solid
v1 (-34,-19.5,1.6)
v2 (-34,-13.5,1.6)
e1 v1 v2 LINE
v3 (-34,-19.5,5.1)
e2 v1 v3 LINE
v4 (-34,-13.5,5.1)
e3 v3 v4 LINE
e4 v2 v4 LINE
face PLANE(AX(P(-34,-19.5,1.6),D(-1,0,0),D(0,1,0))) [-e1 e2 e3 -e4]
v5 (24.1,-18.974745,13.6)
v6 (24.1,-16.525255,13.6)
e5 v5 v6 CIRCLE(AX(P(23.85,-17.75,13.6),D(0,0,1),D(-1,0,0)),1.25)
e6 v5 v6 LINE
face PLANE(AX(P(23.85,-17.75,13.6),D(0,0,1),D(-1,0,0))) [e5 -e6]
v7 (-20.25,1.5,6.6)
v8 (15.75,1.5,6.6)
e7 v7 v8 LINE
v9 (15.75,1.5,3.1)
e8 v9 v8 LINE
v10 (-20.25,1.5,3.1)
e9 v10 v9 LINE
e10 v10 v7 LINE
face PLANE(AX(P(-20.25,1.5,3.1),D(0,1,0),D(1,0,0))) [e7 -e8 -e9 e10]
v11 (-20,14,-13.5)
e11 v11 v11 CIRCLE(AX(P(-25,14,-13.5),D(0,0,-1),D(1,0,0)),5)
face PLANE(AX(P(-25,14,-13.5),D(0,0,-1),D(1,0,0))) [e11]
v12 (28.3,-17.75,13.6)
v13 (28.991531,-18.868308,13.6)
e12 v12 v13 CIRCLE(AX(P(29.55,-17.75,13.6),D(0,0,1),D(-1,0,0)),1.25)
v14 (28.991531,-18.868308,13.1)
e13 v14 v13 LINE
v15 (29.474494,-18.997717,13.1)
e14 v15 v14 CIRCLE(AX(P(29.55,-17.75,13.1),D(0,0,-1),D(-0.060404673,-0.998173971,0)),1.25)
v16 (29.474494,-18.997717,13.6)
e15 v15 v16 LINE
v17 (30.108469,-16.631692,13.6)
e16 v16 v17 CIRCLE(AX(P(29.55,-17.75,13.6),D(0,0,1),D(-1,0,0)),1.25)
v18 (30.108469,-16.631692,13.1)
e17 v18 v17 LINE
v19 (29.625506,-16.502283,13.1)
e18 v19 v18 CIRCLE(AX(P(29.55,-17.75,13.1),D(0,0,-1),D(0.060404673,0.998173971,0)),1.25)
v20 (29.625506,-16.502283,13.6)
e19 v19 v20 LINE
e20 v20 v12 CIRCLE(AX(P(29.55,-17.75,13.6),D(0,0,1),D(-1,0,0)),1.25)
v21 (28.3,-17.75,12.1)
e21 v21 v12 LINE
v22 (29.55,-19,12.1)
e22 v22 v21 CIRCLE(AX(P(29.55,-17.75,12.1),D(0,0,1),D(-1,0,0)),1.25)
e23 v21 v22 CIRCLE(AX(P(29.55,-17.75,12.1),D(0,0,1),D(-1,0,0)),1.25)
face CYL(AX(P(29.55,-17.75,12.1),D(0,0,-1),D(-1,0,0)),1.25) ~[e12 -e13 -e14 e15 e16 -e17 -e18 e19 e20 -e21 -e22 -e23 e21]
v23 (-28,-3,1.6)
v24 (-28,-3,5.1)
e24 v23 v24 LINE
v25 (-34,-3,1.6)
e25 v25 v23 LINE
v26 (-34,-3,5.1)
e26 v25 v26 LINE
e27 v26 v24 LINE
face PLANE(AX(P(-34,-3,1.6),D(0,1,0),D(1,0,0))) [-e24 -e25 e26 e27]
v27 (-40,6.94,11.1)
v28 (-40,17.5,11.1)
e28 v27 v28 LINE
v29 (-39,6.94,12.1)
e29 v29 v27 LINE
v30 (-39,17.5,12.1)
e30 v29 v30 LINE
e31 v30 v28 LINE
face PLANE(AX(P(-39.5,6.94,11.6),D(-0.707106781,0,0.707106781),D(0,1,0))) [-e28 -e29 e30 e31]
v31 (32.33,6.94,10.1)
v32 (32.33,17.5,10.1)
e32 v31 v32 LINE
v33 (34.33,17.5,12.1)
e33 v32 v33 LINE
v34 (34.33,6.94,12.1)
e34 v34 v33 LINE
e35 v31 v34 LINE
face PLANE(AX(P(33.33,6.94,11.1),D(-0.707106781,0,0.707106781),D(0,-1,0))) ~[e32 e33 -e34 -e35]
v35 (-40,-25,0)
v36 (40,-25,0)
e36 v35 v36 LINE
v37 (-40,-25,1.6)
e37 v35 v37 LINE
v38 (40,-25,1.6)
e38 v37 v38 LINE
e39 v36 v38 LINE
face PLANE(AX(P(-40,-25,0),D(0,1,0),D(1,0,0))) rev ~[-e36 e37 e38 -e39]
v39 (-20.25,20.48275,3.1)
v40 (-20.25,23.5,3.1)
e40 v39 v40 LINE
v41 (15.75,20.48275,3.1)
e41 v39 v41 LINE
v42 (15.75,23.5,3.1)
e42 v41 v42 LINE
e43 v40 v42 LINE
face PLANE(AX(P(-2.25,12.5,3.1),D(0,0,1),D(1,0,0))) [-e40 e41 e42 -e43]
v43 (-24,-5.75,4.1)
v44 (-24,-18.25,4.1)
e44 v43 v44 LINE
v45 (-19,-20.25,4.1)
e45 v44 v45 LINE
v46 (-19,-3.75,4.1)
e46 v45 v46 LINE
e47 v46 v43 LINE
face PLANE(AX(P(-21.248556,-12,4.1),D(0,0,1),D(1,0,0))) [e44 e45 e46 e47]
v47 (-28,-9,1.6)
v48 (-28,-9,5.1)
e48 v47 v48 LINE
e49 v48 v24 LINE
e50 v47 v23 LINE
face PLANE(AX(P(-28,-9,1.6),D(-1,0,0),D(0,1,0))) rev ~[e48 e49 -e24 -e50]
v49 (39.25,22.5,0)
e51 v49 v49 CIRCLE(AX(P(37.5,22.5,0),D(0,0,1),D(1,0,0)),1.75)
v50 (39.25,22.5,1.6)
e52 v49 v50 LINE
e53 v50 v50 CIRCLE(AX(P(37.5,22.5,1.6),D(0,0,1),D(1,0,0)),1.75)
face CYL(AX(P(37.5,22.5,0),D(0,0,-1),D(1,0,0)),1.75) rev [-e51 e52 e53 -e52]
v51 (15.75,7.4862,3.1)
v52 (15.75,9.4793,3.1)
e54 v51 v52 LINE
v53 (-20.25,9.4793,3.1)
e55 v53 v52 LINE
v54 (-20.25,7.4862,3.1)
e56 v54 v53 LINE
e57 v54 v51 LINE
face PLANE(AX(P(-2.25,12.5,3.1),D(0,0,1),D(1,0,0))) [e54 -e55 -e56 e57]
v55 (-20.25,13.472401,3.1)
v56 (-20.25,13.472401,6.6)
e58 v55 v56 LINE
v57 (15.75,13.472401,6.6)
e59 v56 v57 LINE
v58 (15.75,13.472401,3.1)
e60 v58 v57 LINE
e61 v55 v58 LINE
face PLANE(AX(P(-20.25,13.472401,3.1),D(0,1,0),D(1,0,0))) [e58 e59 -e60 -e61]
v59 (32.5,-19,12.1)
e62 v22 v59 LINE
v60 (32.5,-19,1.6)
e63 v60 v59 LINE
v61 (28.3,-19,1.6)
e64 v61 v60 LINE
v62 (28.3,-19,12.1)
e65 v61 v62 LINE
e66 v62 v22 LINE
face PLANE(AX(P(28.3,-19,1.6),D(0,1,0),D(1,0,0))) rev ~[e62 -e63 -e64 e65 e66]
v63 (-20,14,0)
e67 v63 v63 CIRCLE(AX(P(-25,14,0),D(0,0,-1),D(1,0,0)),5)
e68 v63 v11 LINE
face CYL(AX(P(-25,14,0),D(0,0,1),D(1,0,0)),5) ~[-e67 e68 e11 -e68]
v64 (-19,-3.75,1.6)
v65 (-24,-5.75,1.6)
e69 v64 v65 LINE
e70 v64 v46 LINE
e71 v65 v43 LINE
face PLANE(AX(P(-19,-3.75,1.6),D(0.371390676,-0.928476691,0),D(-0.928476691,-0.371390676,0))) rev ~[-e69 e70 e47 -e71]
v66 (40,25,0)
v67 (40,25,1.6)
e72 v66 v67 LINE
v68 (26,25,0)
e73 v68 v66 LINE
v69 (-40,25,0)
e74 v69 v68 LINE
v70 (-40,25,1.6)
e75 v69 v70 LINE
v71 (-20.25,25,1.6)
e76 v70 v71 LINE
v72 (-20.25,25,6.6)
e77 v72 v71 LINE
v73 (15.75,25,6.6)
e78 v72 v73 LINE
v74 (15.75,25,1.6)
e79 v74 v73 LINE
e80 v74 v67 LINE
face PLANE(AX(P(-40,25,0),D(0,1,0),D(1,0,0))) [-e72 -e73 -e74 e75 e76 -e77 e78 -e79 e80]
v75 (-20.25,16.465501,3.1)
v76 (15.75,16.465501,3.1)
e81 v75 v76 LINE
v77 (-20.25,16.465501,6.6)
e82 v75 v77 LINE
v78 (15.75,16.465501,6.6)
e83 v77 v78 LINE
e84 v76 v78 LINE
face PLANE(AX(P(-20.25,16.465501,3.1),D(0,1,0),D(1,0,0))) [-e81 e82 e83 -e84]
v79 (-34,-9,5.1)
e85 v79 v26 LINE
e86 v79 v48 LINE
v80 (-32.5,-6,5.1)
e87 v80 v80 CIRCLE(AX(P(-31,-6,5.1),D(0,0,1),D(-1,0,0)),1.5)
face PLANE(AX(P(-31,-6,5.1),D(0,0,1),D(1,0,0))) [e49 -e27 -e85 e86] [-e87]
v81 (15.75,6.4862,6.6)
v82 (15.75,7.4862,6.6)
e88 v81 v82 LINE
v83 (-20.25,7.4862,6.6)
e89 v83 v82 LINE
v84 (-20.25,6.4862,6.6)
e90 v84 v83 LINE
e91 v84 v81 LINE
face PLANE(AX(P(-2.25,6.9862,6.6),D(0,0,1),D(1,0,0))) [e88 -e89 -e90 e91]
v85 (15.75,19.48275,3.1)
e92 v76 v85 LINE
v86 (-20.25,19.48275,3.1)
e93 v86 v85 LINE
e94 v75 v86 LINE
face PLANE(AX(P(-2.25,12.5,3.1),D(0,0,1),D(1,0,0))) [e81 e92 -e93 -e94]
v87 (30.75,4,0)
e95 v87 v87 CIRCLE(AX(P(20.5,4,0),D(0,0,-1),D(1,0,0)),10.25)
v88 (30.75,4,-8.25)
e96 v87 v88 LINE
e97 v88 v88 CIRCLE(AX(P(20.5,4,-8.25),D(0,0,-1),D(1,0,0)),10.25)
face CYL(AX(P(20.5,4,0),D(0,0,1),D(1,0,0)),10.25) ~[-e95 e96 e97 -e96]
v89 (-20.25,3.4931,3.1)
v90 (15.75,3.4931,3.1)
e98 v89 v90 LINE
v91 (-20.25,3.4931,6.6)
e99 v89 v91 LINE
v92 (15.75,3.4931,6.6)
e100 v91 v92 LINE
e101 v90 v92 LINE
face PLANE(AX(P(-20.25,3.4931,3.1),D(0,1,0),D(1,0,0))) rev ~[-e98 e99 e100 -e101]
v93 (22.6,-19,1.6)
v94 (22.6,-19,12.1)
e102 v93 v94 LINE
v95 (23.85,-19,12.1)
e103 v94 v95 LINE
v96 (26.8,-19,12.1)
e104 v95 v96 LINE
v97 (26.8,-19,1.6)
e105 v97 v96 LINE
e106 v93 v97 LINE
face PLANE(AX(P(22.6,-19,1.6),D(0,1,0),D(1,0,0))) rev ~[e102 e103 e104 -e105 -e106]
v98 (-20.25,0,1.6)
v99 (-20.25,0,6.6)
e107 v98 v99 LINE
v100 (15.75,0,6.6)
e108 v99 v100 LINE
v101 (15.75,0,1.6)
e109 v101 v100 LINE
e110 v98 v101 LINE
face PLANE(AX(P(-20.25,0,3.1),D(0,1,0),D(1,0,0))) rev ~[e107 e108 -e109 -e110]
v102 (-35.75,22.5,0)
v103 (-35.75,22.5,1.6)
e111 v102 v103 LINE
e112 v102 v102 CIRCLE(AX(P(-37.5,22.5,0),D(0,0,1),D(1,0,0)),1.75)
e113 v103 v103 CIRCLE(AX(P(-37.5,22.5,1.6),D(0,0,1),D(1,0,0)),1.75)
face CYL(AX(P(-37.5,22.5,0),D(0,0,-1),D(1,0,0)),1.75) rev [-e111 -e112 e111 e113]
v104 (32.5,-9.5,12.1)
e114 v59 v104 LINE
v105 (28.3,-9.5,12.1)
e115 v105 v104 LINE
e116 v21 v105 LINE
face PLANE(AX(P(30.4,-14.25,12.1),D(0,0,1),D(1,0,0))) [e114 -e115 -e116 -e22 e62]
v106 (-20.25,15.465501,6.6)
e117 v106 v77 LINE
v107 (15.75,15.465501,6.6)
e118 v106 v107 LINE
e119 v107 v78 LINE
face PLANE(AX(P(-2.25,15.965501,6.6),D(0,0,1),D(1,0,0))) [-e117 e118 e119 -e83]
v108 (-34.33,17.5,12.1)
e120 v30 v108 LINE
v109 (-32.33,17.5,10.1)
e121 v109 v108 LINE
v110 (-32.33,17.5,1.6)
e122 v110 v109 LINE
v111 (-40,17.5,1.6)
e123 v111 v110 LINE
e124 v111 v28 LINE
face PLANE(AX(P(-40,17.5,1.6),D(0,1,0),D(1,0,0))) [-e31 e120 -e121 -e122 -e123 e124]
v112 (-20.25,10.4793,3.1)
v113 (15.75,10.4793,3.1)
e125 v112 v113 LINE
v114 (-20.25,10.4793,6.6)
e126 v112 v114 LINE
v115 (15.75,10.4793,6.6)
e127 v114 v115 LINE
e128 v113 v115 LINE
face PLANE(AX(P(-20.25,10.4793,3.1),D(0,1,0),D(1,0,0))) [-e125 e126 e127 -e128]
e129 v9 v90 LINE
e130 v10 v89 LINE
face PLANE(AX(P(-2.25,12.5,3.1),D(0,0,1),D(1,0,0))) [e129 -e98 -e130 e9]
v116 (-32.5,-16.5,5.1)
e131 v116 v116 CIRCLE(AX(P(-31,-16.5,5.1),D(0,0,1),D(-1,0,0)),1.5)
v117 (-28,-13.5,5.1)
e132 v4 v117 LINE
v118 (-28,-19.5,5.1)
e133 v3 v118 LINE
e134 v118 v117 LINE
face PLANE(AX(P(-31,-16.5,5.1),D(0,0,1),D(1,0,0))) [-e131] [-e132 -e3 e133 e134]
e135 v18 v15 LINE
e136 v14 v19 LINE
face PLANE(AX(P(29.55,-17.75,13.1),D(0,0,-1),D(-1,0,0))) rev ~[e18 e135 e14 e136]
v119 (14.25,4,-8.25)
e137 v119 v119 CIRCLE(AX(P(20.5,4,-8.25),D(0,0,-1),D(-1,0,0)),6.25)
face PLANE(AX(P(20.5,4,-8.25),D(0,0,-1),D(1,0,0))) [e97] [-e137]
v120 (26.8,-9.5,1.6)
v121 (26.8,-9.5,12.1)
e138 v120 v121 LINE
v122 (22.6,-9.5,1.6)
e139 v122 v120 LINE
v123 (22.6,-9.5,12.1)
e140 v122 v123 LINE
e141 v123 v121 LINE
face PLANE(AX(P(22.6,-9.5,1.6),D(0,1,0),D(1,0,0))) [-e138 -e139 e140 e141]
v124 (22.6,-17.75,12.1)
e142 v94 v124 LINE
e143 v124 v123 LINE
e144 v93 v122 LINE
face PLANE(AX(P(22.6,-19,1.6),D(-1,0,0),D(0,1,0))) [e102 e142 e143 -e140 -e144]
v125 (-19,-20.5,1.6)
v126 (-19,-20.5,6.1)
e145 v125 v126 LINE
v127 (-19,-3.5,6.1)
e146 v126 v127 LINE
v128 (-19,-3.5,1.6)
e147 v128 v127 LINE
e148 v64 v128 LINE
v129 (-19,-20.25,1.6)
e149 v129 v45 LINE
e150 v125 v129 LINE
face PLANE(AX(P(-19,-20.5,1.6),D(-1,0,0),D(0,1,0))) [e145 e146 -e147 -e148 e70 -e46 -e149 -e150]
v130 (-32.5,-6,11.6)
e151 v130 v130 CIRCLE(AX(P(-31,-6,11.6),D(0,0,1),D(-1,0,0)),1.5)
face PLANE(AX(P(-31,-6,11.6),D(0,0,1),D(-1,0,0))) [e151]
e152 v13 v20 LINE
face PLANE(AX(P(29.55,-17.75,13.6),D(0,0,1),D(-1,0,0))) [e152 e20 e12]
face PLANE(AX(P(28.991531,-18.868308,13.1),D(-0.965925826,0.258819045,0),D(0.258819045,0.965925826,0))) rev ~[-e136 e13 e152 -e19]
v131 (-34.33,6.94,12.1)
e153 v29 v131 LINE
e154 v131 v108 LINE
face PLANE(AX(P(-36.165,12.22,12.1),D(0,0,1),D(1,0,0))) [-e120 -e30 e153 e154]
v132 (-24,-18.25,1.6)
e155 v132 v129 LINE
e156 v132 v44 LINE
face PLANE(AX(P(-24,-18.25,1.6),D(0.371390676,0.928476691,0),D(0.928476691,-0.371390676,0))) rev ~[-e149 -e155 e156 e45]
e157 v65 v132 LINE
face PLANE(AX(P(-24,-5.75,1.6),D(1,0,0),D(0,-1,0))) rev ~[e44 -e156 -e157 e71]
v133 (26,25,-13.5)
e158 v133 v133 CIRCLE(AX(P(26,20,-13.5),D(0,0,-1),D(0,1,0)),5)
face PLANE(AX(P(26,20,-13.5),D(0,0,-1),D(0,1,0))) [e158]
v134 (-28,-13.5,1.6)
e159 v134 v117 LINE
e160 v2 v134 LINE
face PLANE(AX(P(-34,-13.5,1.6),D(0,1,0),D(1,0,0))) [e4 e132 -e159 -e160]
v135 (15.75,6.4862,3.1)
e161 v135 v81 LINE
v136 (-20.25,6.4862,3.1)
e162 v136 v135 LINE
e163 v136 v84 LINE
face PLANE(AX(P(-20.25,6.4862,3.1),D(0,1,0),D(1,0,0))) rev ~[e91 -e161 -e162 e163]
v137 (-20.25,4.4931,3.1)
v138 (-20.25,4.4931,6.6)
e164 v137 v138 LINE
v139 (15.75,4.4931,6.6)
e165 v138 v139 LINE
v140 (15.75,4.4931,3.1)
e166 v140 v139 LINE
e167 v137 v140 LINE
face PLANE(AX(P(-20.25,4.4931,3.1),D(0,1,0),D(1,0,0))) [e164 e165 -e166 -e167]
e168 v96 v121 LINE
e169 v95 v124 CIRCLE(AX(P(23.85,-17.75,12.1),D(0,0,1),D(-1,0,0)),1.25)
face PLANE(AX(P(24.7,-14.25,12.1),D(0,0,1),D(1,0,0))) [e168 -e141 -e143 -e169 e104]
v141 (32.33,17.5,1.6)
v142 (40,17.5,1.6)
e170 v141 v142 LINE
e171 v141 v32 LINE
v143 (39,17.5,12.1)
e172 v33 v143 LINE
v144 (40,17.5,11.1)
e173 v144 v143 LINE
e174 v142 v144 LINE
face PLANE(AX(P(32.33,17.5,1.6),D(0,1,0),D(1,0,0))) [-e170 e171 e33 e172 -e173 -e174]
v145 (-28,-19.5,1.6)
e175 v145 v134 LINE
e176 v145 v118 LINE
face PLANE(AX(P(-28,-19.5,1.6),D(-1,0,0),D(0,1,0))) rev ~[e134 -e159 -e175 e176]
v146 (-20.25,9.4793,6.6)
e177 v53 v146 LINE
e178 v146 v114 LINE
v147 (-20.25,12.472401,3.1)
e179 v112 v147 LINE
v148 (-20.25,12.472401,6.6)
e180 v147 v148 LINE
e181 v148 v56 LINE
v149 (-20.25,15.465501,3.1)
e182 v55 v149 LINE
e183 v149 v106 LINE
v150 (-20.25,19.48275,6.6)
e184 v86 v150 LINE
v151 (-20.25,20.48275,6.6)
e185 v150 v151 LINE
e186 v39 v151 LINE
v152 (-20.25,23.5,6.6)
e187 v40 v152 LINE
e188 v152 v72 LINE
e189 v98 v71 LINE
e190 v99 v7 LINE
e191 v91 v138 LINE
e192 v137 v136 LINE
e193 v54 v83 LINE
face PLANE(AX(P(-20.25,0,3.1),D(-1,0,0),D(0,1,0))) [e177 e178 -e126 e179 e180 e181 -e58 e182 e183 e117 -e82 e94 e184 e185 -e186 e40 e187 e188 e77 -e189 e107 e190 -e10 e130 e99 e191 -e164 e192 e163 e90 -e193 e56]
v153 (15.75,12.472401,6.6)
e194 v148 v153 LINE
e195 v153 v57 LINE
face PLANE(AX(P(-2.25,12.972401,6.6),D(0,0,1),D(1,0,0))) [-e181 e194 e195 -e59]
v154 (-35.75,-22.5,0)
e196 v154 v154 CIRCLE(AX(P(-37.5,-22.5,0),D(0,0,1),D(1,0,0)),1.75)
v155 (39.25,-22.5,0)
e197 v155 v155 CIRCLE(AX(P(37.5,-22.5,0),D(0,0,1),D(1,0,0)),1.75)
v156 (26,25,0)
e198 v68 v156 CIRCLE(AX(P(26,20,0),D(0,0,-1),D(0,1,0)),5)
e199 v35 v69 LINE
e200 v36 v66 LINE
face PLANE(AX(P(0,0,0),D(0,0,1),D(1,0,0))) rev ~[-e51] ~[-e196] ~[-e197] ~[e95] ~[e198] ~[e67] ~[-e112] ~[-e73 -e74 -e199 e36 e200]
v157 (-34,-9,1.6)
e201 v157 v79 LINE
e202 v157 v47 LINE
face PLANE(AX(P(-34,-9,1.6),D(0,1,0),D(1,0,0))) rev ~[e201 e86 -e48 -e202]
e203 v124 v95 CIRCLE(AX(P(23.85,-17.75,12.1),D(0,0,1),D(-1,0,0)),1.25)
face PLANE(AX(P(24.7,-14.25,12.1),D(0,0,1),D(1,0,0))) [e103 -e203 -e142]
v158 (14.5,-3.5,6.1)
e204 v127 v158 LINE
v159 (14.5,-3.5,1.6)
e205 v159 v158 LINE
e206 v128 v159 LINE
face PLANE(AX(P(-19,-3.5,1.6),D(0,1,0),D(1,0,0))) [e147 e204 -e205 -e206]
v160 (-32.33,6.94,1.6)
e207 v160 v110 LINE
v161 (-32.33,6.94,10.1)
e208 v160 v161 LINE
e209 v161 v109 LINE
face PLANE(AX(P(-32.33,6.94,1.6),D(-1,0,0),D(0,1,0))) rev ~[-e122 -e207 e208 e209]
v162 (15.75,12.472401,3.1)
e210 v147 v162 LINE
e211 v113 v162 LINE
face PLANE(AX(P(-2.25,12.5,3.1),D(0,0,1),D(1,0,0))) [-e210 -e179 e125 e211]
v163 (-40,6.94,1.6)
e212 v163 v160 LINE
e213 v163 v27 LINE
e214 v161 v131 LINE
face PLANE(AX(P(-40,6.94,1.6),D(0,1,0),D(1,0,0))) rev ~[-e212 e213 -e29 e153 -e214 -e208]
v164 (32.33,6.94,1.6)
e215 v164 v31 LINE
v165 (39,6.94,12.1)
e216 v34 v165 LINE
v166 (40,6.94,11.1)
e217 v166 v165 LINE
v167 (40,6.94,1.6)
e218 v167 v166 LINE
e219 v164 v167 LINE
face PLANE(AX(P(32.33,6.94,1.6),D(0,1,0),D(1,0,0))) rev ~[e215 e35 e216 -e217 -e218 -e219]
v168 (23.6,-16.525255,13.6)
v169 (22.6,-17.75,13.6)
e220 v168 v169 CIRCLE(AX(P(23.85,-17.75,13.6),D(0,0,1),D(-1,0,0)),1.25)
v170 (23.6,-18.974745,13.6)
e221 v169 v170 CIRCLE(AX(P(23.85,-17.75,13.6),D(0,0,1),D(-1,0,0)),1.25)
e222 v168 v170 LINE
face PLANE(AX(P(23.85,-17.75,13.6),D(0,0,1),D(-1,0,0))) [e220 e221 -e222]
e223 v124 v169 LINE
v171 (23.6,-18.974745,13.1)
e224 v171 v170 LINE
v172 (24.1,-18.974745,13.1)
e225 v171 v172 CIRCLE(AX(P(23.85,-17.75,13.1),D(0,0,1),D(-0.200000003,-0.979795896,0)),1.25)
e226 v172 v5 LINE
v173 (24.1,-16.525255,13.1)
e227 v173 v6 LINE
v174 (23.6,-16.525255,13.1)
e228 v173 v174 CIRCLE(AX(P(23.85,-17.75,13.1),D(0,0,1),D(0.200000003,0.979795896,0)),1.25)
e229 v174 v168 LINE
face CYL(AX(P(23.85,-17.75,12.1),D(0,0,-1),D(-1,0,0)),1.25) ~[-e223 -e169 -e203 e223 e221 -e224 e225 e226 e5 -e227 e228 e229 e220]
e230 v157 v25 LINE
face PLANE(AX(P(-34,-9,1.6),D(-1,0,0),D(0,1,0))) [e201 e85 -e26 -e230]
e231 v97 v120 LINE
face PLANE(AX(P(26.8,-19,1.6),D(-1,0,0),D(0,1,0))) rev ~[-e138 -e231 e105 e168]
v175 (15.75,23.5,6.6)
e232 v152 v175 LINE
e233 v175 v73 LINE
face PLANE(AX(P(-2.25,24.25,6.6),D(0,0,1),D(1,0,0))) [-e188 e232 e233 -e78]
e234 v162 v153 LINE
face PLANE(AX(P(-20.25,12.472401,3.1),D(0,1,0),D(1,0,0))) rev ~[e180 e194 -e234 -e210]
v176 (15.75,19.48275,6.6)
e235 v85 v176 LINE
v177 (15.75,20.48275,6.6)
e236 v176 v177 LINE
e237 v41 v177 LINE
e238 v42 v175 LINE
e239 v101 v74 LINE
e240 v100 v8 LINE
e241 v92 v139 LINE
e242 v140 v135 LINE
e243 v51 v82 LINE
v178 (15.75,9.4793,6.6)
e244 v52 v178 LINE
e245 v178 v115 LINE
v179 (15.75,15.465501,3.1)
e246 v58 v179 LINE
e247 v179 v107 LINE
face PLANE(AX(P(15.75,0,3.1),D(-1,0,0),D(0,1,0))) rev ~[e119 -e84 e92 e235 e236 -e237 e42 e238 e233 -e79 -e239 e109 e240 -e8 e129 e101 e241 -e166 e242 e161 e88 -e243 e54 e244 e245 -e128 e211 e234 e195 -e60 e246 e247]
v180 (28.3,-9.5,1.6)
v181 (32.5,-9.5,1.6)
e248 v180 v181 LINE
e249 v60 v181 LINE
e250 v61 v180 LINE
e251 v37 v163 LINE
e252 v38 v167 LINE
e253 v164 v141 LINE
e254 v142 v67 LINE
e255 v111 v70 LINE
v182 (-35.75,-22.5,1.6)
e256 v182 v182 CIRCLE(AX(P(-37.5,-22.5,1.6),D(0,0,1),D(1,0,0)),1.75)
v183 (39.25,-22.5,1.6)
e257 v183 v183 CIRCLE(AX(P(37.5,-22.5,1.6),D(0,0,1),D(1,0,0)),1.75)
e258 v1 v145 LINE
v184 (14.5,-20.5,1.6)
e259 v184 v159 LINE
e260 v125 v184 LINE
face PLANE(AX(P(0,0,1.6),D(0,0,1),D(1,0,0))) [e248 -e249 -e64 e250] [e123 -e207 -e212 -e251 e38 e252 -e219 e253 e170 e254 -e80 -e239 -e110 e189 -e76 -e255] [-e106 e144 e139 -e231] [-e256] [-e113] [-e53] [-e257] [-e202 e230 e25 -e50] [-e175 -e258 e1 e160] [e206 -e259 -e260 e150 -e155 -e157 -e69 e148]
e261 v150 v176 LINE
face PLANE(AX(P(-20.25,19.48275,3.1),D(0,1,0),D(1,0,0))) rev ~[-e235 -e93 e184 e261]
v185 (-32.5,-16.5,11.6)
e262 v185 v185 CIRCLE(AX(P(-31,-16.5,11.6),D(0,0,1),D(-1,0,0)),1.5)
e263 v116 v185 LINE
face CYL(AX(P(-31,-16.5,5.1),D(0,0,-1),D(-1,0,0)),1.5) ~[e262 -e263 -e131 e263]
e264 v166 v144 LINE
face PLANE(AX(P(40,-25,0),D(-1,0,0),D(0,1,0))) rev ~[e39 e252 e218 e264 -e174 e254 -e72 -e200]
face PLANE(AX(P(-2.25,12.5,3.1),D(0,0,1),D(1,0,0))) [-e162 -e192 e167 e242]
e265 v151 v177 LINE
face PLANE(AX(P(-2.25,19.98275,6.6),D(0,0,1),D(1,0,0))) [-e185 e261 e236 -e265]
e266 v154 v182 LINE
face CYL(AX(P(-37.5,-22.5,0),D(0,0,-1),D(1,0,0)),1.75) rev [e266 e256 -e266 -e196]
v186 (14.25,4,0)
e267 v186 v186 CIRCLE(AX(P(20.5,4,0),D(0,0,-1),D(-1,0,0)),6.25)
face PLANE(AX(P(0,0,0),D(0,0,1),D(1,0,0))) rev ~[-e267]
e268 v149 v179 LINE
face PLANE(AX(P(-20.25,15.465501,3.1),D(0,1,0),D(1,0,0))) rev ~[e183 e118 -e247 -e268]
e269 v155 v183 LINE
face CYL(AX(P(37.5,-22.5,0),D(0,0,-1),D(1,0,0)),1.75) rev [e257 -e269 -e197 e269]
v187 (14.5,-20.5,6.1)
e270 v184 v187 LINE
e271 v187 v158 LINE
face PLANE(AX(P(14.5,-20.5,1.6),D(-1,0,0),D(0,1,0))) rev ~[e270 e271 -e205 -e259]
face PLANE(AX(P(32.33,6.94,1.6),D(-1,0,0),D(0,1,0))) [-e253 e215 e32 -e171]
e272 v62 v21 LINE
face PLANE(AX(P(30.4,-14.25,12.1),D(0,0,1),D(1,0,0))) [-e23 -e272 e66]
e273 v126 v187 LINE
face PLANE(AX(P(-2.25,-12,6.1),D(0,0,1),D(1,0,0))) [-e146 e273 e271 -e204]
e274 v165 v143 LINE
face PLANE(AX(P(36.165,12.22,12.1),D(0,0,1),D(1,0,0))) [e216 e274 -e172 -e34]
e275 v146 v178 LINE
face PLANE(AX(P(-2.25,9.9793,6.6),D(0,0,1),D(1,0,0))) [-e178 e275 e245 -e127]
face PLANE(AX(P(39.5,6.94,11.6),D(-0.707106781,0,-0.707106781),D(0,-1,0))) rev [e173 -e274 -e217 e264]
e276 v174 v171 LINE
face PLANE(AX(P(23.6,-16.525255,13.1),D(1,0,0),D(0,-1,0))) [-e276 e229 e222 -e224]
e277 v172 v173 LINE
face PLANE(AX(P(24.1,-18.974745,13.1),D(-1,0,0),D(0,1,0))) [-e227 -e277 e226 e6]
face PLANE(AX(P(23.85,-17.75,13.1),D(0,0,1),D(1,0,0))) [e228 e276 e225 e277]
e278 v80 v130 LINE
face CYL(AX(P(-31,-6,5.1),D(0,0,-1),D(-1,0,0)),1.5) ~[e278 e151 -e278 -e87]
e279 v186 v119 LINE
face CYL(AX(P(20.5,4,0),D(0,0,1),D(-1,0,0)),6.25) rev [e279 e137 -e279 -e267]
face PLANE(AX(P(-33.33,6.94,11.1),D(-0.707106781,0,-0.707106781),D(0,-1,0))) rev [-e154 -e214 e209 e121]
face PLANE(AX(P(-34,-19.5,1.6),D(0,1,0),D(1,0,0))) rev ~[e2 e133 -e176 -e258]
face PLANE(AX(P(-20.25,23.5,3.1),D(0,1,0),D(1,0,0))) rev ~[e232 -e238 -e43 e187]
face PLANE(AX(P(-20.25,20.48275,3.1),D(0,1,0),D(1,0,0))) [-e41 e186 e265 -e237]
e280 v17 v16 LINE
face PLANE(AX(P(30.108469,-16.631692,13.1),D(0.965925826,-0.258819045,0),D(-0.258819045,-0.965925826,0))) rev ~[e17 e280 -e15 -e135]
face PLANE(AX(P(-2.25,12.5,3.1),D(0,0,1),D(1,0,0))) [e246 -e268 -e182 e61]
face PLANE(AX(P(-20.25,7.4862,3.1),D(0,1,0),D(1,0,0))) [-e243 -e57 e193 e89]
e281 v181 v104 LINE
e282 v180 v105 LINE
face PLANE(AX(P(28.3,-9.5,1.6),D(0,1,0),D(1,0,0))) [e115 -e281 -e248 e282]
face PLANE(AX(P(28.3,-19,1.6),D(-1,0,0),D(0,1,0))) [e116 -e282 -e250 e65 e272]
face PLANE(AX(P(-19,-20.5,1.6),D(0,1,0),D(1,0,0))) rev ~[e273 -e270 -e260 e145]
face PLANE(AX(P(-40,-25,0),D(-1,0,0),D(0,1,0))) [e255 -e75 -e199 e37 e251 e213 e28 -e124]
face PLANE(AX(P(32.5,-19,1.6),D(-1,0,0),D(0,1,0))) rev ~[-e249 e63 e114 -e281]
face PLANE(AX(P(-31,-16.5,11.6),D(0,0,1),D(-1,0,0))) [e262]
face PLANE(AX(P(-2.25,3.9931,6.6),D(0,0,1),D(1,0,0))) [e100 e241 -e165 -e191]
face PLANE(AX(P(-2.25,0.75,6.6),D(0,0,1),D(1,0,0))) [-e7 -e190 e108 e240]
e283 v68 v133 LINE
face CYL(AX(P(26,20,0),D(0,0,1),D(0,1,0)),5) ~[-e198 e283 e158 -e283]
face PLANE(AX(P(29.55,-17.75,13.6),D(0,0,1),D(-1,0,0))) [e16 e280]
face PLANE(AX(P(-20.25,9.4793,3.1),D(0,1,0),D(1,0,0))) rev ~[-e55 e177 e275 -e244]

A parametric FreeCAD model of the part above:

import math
import FreeCAD as App
import Part
import Sketcher

V = App.Vector
Q = App.Units.Quantity


def edges_at(feature, points):
    """Names of the edges that pass closest to the given points."""
    edges = feature.Shape.Edges
    near = lambda p: min(range(len(edges)), key=lambda i: edges[i].distToShape(Part.Vertex(*p))[0])
    return sorted({f"Edge{near(p) + 1}" for p in points})


def add_polygon(sketch, points):
    """Adds a closed chain of lines whose ends are joined by coincident constraints."""
    first, n = sketch.GeometryCount, len(points)
    for a, b in zip(points, points[1:] + points[:1]):
        sketch.addGeometry(Part.LineSegment(App.Vector(*a, 0), App.Vector(*b, 0)), False)
    for i in range(n):
        sketch.addConstraint(Sketcher.Constraint("Coincident", first + i, 2, first + (i + 1) % n, 1))

doc = App.newDocument("Part")
body = doc.addObject("PartDesign::Body", "Body")

sketch1 = body.newObject("Sketcher::SketchObject", "Sketch")
sketch1.AttachmentSupport = (doc.getObject("XY_Plane"), [""])
sketch1.MapMode = "FlatFace"
add_polygon(sketch1, [(-40, 25), (-40, -25), (40, -25), (40, 25)])
sketch1.addGeometry(Part.Circle(V(-37.5, -22.5, 0), V(0, 0, 1), 1.8), False)
sketch1.addGeometry(Part.Circle(V(37.5, -22.5, 0), V(0, 0, 1), 1.8), False)
sketch1.addGeometry(Part.Circle(V(-37.5, 22.5, 0), V(0, 0, 1), 1.8), False)
sketch1.addGeometry(Part.Circle(V(37.5, 22.5, 0), V(0, 0, 1), 1.8), False)
sketch1.addConstraint(Sketcher.Constraint("Vertical", 0))
sketch1.addConstraint(Sketcher.Constraint("Horizontal", 1))
sketch1.addConstraint(Sketcher.Constraint("Vertical", 2))
sketch1.addConstraint(Sketcher.Constraint("Horizontal", 3))
sketch1.addConstraint(Sketcher.Constraint("Equal", 4, 5))
sketch1.addConstraint(Sketcher.Constraint("Equal", 5, 6))
sketch1.addConstraint(Sketcher.Constraint("Equal", 6, 7))
sketch1.addConstraint(Sketcher.Constraint("Symmetric", 5, 3, 6, 3, -1, 1))
sketch1.addConstraint(Sketcher.Constraint("Symmetric", 4, 3, 7, 3, -1, 1))
sketch1.addConstraint(Sketcher.Constraint("Symmetric", 0, 2, 2, 2, -1, 1))
sketch1.addConstraint(Sketcher.Constraint("Symmetric", 4, 3, 5, 3, -2))
sketch1.addConstraint(Sketcher.Constraint("Diameter", 4, Q("3.5 mm")))
sketch1.addConstraint(Sketcher.Constraint("DistanceX", 1, 1, 1, 2, Q("80 mm")))
sketch1.addConstraint(Sketcher.Constraint("DistanceY", 0, 2, 0, 1, Q("50 mm")))
sketch1.addConstraint(Sketcher.Constraint("DistanceX", 4, 3, 5, 3, Q("75 mm")))
sketch1.addConstraint(Sketcher.Constraint("DistanceY", 4, 3, 6, 3, Q("45 mm")))
pad1 = body.newObject("PartDesign::Pad", "Pad")
pad1.Profile = sketch1
pad1.Length = 1.6

sketch2 = body.newObject("Sketcher::SketchObject", "Sketch001")
sketch2.AttachmentSupport = (doc.getObject("XY_Plane"), [""])
sketch2.MapMode = "FlatFace"
sketch2.AttachmentOffset = App.Placement(V(0, 0, 1.6), App.Rotation())
add_polygon(sketch2, [(22.6, -9.5), (22.6, -19), (26.8, -19), (26.8, -9.5)])
add_polygon(sketch2, [(28.3, -9.5), (28.3, -19), (32.5, -19), (32.5, -9.5)])
add_polygon(sketch2, [(32.3, 17.5), (32.3, 6.9), (40, 6.9), (40, 17.5)])
add_polygon(sketch2, [(-40, 17.5), (-40, 6.9), (-32.3, 6.9), (-32.3, 17.5)])
sketch2.addConstraint(Sketcher.Constraint("Vertical", 0))
sketch2.addConstraint(Sketcher.Constraint("Horizontal", 1))
sketch2.addConstraint(Sketcher.Constraint("Vertical", 2))
sketch2.addConstraint(Sketcher.Constraint("Horizontal", 3))
sketch2.addConstraint(Sketcher.Constraint("Vertical", 4))
sketch2.addConstraint(Sketcher.Constraint("Horizontal", 5))
sketch2.addConstraint(Sketcher.Constraint("Vertical", 6))
sketch2.addConstraint(Sketcher.Constraint("Horizontal", 7))
sketch2.addConstraint(Sketcher.Constraint("Vertical", 8))
sketch2.addConstraint(Sketcher.Constraint("Horizontal", 9))
sketch2.addConstraint(Sketcher.Constraint("Vertical", 10))
sketch2.addConstraint(Sketcher.Constraint("Horizontal", 11))
sketch2.addConstraint(Sketcher.Constraint("Vertical", 12))
sketch2.addConstraint(Sketcher.Constraint("Horizontal", 13))
sketch2.addConstraint(Sketcher.Constraint("Vertical", 14))
sketch2.addConstraint(Sketcher.Constraint("Horizontal", 15))
sketch2.addConstraint(Sketcher.Constraint("Symmetric", 9, 2, 12, 2, -2))
sketch2.addConstraint(Sketcher.Constraint("Symmetric", 11, 2, 14, 2, -2))
sketch2.addConstraint(Sketcher.Constraint("Horizontal", 1, 2, 4, 2))
sketch2.addConstraint(Sketcher.Constraint("Horizontal", 3, 2, 6, 2))
sketch2.addConstraint(Sketcher.Constraint("Equal", 3, 5))
sketch2.addConstraint(Sketcher.Constraint("DistanceX", 1, 1, 1, 2, Q("4.2 mm")))
sketch2.addConstraint(Sketcher.Constraint("DistanceY", 0, 2, 0, 1, Q("9.5 mm")))
sketch2.addConstraint(Sketcher.Constraint("DistanceY", 0, 2, -1, 1, Q("19 mm")))
sketch2.addConstraint(Sketcher.Constraint("DistanceX", -1, 1, 9, 2, Q("40 mm")))
sketch2.addConstraint(Sketcher.Constraint("DistanceY", 6, 2, 10, 2, Q("27 mm")))
sketch2.addConstraint(Sketcher.Constraint("DistanceX", 9, 1, 9, 2, Q("7.67 mm")))
sketch2.addConstraint(Sketcher.Constraint("DistanceY", 8, 2, 8, 1, Q("10.56 mm")))
sketch2.addConstraint(Sketcher.Constraint("DistanceX", -1, 1, 0, 2, Q("22.6 mm")))
sketch2.addConstraint(Sketcher.Constraint("DistanceX", -1, 1, 4, 2, Q("28.3 mm")))
pad2 = body.newObject("PartDesign::Pad", "Pad001")
pad2.Profile = sketch2
pad2.Length = 10.5
doc.recompute()

chamfer = body.newObject("PartDesign::Chamfer", "Chamfer")
chamfer.Base = (pad2, edges_at(pad2, [(32.33, 12.22, 12.1), (-32.33, 12.22, 12.1)]))
chamfer.Size = 2
doc.recompute()

chamfer2 = body.newObject("PartDesign::Chamfer", "Chamfer001")
chamfer2.Base = (chamfer, edges_at(chamfer, [(40, 12.22, 12.1), (-40, 12.22, 12.1)]))
chamfer2.Size = 1

sketch3 = body.newObject("Sketcher::SketchObject", "Sketch002")
sketch3.AttachmentSupport = (doc.getObject("XY_Plane"), [""])
sketch3.MapMode = "FlatFace"
sketch3.AttachmentOffset = App.Placement(V(0, 0, 12.1), App.Rotation())
sketch3.addGeometry(Part.Circle(V(23.9, -17.8, 0), V(0, 0, 1), 1.2), False)
sketch3.addGeometry(Part.Circle(V(29.6, -17.8, 0), V(0, 0, 1), 1.2), False)
sketch3.addConstraint(Sketcher.Constraint("Equal", 0, 1))
sketch3.addConstraint(Sketcher.Constraint("Horizontal", 0, 3, 1, 3))
sketch3.addConstraint(Sketcher.Constraint("Diameter", 0, Q("2.5 mm")))
sketch3.addConstraint(Sketcher.Constraint("DistanceX", 0, 3, 1, 3, Q("5.7 mm")))
sketch3.addConstraint(Sketcher.Constraint("DistanceX", -1, 1, 0, 3, Q("23.85 mm")))
sketch3.addConstraint(Sketcher.Constraint("DistanceY", 0, 3, -1, 1, Q("17.75 mm")))
pad3 = body.newObject("PartDesign::Pad", "Pad002")
pad3.Profile = sketch3
pad3.Length = 1.5

sketch4 = body.newObject("Sketcher::SketchObject", "Sketch003")
sketch4.AttachmentSupport = (doc.getObject("XY_Plane"), [""])
sketch4.MapMode = "FlatFace"
sketch4.AttachmentOffset = App.Placement(V(0, 0, 13.1), App.Rotation())
sketch4.addGeometry(Part.LineSegment(V(23.6, -16.53, 0), V(23.6, -18.97, 0)), False)
sketch4.addGeometry(Part.ArcOfCircle(Part.Circle(V(23.85, -17.75, 0), V(0, 0, 1), 1.25), math.radians(-102), math.radians(-78)), False)
sketch4.addGeometry(Part.LineSegment(V(24.1, -18.97, 0), V(24.1, -16.53, 0)), False)
sketch4.addGeometry(Part.ArcOfCircle(Part.Circle(V(23.85, -17.75, 0), V(0, 0, 1), 1.25), math.radians(78), math.radians(102)), False)
sketch4.addGeometry(Part.LineSegment(V(29.63, -16.5, 0), V(28.99, -18.87, 0)), False)
sketch4.addGeometry(Part.ArcOfCircle(Part.Circle(V(29.55, -17.75, 0), V(0, 0, 1), 1.25), math.radians(-117), math.radians(-93)), False)
sketch4.addGeometry(Part.LineSegment(V(29.47, -19, 0), V(30.11, -16.63, 0)), False)
sketch4.addGeometry(Part.ArcOfCircle(Part.Circle(V(29.55, -17.75, 0), V(0, 0, 1), 1.25), math.radians(63), math.radians(87)), False)
sketch4.addConstraint(Sketcher.Constraint("Coincident", 0, 2, 1, 1))
sketch4.addConstraint(Sketcher.Constraint("Coincident", 1, 2, 2, 1))
sketch4.addConstraint(Sketcher.Constraint("Coincident", 2, 2, 3, 1))
sketch4.addConstraint(Sketcher.Constraint("Coincident", 3, 2, 0, 1))
sketch4.addConstraint(Sketcher.Constraint("Coincident", 4, 2, 5, 1))
sketch4.addConstraint(Sketcher.Constraint("Coincident", 5, 2, 6, 1))
sketch4.addConstraint(Sketcher.Constraint("Coincident", 6, 2, 7, 1))
sketch4.addConstraint(Sketcher.Constraint("Coincident", 7, 2, 4, 1))
sketch4.addConstraint(Sketcher.Constraint("Vertical", 0))
sketch4.addConstraint(Sketcher.Constraint("Vertical", 2))
sketch4.addConstraint(Sketcher.Constraint("Coincident", 3, 3, 1, 3))
sketch4.addConstraint(Sketcher.Constraint("Coincident", 7, 3, 5, 3))
sketch4.addConstraint(Sketcher.Constraint("Equal", 1, 3))
sketch4.addConstraint(Sketcher.Constraint("Equal", 3, 5))
sketch4.addConstraint(Sketcher.Constraint("Equal", 5, 7))
sketch4.addConstraint(Sketcher.Constraint("Parallel", 4, 6))
sketch4.addConstraint(Sketcher.Constraint("Horizontal", 3, 3, 5, 3))
sketch4.addConstraint(Sketcher.Constraint("Horizontal", 0, 2, 1, 2))
sketch4.addConstraint(Sketcher.Constraint("Equal", 4, 6))
sketch4.addConstraint(Sketcher.Constraint("Angle", 4, Q("-105 deg")))
sketch4.addConstraint(Sketcher.Constraint("Radius", 1, Q("1.25 mm")))
sketch4.addConstraint(Sketcher.Constraint("DistanceX", -1, 1, 0, 2, Q("23.6 mm")))
sketch4.addConstraint(Sketcher.Constraint("DistanceX", -1, 1, 1, 2, Q("24.1 mm")))
sketch4.addConstraint(Sketcher.Constraint("DistanceX", 1, 3, 5, 3, Q("5.7 mm")))
sketch4.addConstraint(Sketcher.Constraint("DistanceY", 1, 3, -1, 1, Q("17.75 mm")))
sketch4.addConstraint(Sketcher.Constraint("Distance", 4, Q("2.44949 mm")))
pocket1 = body.newObject("PartDesign::Pocket", "Pocket")
pocket1.Profile = sketch4
pocket1.Length = 0.5
pocket1.Reversed = True

sketch5 = body.newObject("Sketcher::SketchObject", "Sketch004")
sketch5.AttachmentSupport = (doc.getObject("XY_Plane"), [""])
sketch5.MapMode = "FlatFace"
sketch5.AttachmentOffset = App.Placement(V(0, 0, 1.6), App.Rotation())
add_polygon(sketch5, [(-19, -4), (-19, -20), (14, -20), (14, -4)])
sketch5.addConstraint(Sketcher.Constraint("Vertical", 0))
sketch5.addConstraint(Sketcher.Constraint("Horizontal", 1))
sketch5.addConstraint(Sketcher.Constraint("Vertical", 2))
sketch5.addConstraint(Sketcher.Constraint("Horizontal", 3))
sketch5.addConstraint(Sketcher.Constraint("DistanceY", 0, 2, 0, 1, Q("17 mm")))
sketch5.addConstraint(Sketcher.Constraint("DistanceX", 1, 1, 1, 2, Q("33.5 mm")))
sketch5.addConstraint(Sketcher.Constraint("DistanceX", 0, 2, -1, 1, Q("19 mm")))
sketch5.addConstraint(Sketcher.Constraint("DistanceY", 0, 2, -1, 1, Q("20.5 mm")))
pad4 = body.newObject("PartDesign::Pad", "Pad003")
pad4.Profile = sketch5
pad4.Length = 4.5

sketch6 = body.newObject("Sketcher::SketchObject", "Sketch005")
sketch6.AttachmentSupport = (doc.getObject("XY_Plane"), [""])
sketch6.MapMode = "FlatFace"
sketch6.AttachmentOffset = App.Placement(V(0, 0, 1.6), App.Rotation())
add_polygon(sketch6, [(-24, -18), (-19, -20), (-19, -4), (-24, -6)])
sketch6.addConstraint(Sketcher.Constraint("Vertical", 1))
sketch6.addConstraint(Sketcher.Constraint("Vertical", 3))
sketch6.addConstraint(Sketcher.Constraint("Equal", 0, 2))
sketch6.addConstraint(Sketcher.Constraint("DistanceY", 1, 1, 1, 2, Q("16.5 mm")))
sketch6.addConstraint(Sketcher.Constraint("DistanceY", 3, 2, 3, 1, Q("12.5 mm")))
sketch6.addConstraint(Sketcher.Constraint("DistanceX", 0, 2, -1, 1, Q("19 mm")))
sketch6.addConstraint(Sketcher.Constraint("DistanceX", 2, 2, -1, 1, Q("24 mm")))
sketch6.addConstraint(Sketcher.Constraint("DistanceY", 0, 2, -1, 1, Q("20.25 mm")))
pad5 = body.newObject("PartDesign::Pad", "Pad004")
pad5.Profile = sketch6
pad5.Length = 2.5

sketch7 = body.newObject("Sketcher::SketchObject", "Sketch006")
sketch7.AttachmentSupport = (doc.getObject("XY_Plane"), [""])
sketch7.MapMode = "FlatFace"
sketch7.AttachmentOffset = App.Placement(V(0, 0, 1.6), App.Rotation())
add_polygon(sketch7, [(-34, -14), (-34, -20), (-28, -20), (-28, -14)])
add_polygon(sketch7, [(-34, -3), (-34, -9), (-28, -9), (-28, -3)])
sketch7.addConstraint(Sketcher.Constraint("Vertical", 0))
sketch7.addConstraint(Sketcher.Constraint("Horizontal", 1))
sketch7.addConstraint(Sketcher.Constraint("Vertical", 2))
sketch7.addConstraint(Sketcher.Constraint("Horizontal", 3))
sketch7.addConstraint(Sketcher.Constraint("Vertical", 4))
sketch7.addConstraint(Sketcher.Constraint("Horizontal", 5))
sketch7.addConstraint(Sketcher.Constraint("Vertical", 6))
sketch7.addConstraint(Sketcher.Constraint("Horizontal", 7))
sketch7.addConstraint(Sketcher.Constraint("Vertical", 3, 2, 4, 2))
sketch7.addConstraint(Sketcher.Constraint("Vertical", 2, 2, 5, 2))
sketch7.addConstraint(Sketcher.Constraint("Equal", 7, 0))
sketch7.addConstraint(Sketcher.Constraint("Equal", 2, 4))
sketch7.addConstraint(Sketcher.Constraint("DistanceX", 1, 1, 1, 2, Q("6 mm")))
sketch7.addConstraint(Sketcher.Constraint("DistanceX", 0, 2, -1, 1, Q("34 mm")))
sketch7.addConstraint(Sketcher.Constraint("DistanceY", 4, 2, -1, 1, Q("9 mm")))
sketch7.addConstraint(Sketcher.Constraint("DistanceY", 0, 2, -1, 1, Q("19.5 mm")))
pad6 = body.newObject("PartDesign::Pad", "Pad005")
pad6.Profile = sketch7
pad6.Length = 3.5

sketch8 = body.newObject("Sketcher::SketchObject", "Sketch007")
sketch8.AttachmentSupport = (doc.getObject("XY_Plane"), [""])
sketch8.MapMode = "FlatFace"
sketch8.AttachmentOffset = App.Placement(V(0, 0, 5.1), App.Rotation())
sketch8.addGeometry(Part.Circle(V(-31, -6, 0), V(0, 0, 1), 1.5), False)
sketch8.addGeometry(Part.Circle(V(-31, -16.5, 0), V(0, 0, 1), 1.5), False)
sketch8.addConstraint(Sketcher.Constraint("Equal", 0, 1))
sketch8.addConstraint(Sketcher.Constraint("Vertical", 0, 3, 1, 3))
sketch8.addConstraint(Sketcher.Constraint("Diameter", 0, Q("3 mm")))
sketch8.addConstraint(Sketcher.Constraint("DistanceX", 0, 3, -1, 1, Q("31 mm")))
sketch8.addConstraint(Sketcher.Constraint("DistanceY", 0, 3, -1, 1, Q("6 mm")))
sketch8.addConstraint(Sketcher.Constraint("DistanceY", 1, 3, -1, 1, Q("16.5 mm")))
pad7 = body.newObject("PartDesign::Pad", "Pad006")
pad7.Profile = sketch8
pad7.Length = 6.5

sketch9 = body.newObject("Sketcher::SketchObject", "Sketch008")
sketch9.AttachmentSupport = (doc.getObject("XY_Plane"), [""])
sketch9.MapMode = "FlatFace"
sketch9.AttachmentOffset = App.Placement(V(0, 0, 1.6), App.Rotation())
add_polygon(sketch9, [(-20, 25), (-20, 0), (16, 0), (16, 25)])
sketch9.addConstraint(Sketcher.Constraint("Vertical", 0))
sketch9.addConstraint(Sketcher.Constraint("Horizontal", 1))
sketch9.addConstraint(Sketcher.Constraint("Vertical", 2))
sketch9.addConstraint(Sketcher.Constraint("Horizontal", 3))
sketch9.addConstraint(Sketcher.Constraint("PointOnObject", 0, 2, -1))
sketch9.addConstraint(Sketcher.Constraint("DistanceX", 1, 1, 1, 2, Q("36 mm")))
sketch9.addConstraint(Sketcher.Constraint("DistanceY", 0, 2, 0, 1, Q("25 mm")))
sketch9.addConstraint(Sketcher.Constraint("DistanceX", 0, 2, -1, 1, Q("20.25 mm")))
pad8 = body.newObject("PartDesign::Pad", "Pad007")
pad8.Profile = sketch9
pad8.Length = 1.5

sketch10 = body.newObject("Sketcher::SketchObject", "Sketch009")
sketch10.AttachmentSupport = (doc.getObject("XY_Plane"), [""])
sketch10.MapMode = "FlatFace"
sketch10.AttachmentOffset = App.Placement(V(0, 0, 3.1), App.Rotation())
add_polygon(sketch10, [(-20.2, 1.5), (-20.2, 0), (15.8, 0), (15.8, 1.5)])
add_polygon(sketch10, [(-20.2, 25), (-20.2, 23.5), (15.8, 23.5), (15.8, 25)])
add_polygon(sketch10, [(-20.2, 4.5), (-20.2, 3.5), (15.8, 3.5), (15.8, 4.5)])
add_polygon(sketch10, [(-20.2, 7.5), (-20.2, 6.5), (15.8, 6.5), (15.8, 7.5)])
add_polygon(sketch10, [(-20.2, 10.5), (-20.2, 9.5), (15.8, 9.5), (15.8, 10.5)])
add_polygon(sketch10, [(-20.2, 13.5), (-20.2, 12.5), (15.8, 12.5), (15.8, 13.5)])
add_polygon(sketch10, [(-20.2, 16.5), (-20.2, 15.5), (15.8, 15.5), (15.8, 16.5)])
add_polygon(sketch10, [(-20.2, 20.5), (-20.2, 19.5), (15.8, 19.5), (15.8, 20.5)])
sketch10.addConstraint(Sketcher.Constraint("Vertical", 0))
sketch10.addConstraint(Sketcher.Constraint("Horizontal", 1))
sketch10.addConstraint(Sketcher.Constraint("Vertical", 2))
sketch10.addConstraint(Sketcher.Constraint("Horizontal", 3))
sketch10.addConstraint(Sketcher.Constraint("Vertical", 4))
sketch10.addConstraint(Sketcher.Constraint("Horizontal", 5))
sketch10.addConstraint(Sketcher.Constraint("Vertical", 6))
sketch10.addConstraint(Sketcher.Constraint("Horizontal", 7))
sketch10.addConstraint(Sketcher.Constraint("Vertical", 8))
sketch10.addConstraint(Sketcher.Constraint("Horizontal", 9))
sketch10.addConstraint(Sketcher.Constraint("Vertical", 10))
sketch10.addConstraint(Sketcher.Constraint("Horizontal", 11))
sketch10.addConstraint(Sketcher.Constraint("Vertical", 12))
sketch10.addConstraint(Sketcher.Constraint("Horizontal", 13))
sketch10.addConstraint(Sketcher.Constraint("Vertical", 14))
sketch10.addConstraint(Sketcher.Constraint("Horizontal", 15))
sketch10.addConstraint(Sketcher.Constraint("Vertical", 16))
sketch10.addConstraint(Sketcher.Constraint("Horizontal", 17))
sketch10.addConstraint(Sketcher.Constraint("Vertical", 18))
sketch10.addConstraint(Sketcher.Constraint("Horizontal", 19))
sketch10.addConstraint(Sketcher.Constraint("Vertical", 20))
sketch10.addConstraint(Sketcher.Constraint("Horizontal", 21))
sketch10.addConstraint(Sketcher.Constraint("Vertical", 22))
sketch10.addConstraint(Sketcher.Constraint("Horizontal", 23))
sketch10.addConstraint(Sketcher.Constraint("Vertical", 24))
sketch10.addConstraint(Sketcher.Constraint("Horizontal", 25))
sketch10.addConstraint(Sketcher.Constraint("Vertical", 26))
sketch10.addConstraint(Sketcher.Constraint("Horizontal", 27))
sketch10.addConstraint(Sketcher.Constraint("Vertical", 28))
sketch10.addConstraint(Sketcher.Constraint("Horizontal", 29))
sketch10.addConstraint(Sketcher.Constraint("Vertical", 30))
sketch10.addConstraint(Sketcher.Constraint("Horizontal", 31))
sketch10.addConstraint(Sketcher.Constraint("PointOnObject", 0, 2, -1))
sketch10.addConstraint(Sketcher.Constraint("Vertical", 3, 2, 4, 2))
sketch10.addConstraint(Sketcher.Constraint("Vertical", 2, 2, 5, 2))
sketch10.addConstraint(Sketcher.Constraint("Vertical", 7, 2, 8, 2))
sketch10.addConstraint(Sketcher.Constraint("Vertical", 6, 2, 9, 2))
sketch10.addConstraint(Sketcher.Constraint("Vertical", 11, 2, 12, 2))
sketch10.addConstraint(Sketcher.Constraint("Vertical", 10, 2, 13, 2))
sketch10.addConstraint(Sketcher.Constraint("Vertical", 15, 2, 16, 2))
sketch10.addConstraint(Sketcher.Constraint("Vertical", 14, 2, 17, 2))
sketch10.addConstraint(Sketcher.Constraint("Vertical", 19, 2, 20, 2))
sketch10.addConstraint(Sketcher.Constraint("Vertical", 18, 2, 21, 2))
sketch10.addConstraint(Sketcher.Constraint("Vertical", 23, 2, 24, 2))
sketch10.addConstraint(Sketcher.Constraint("Vertical", 22, 2, 25, 2))
sketch10.addConstraint(Sketcher.Constraint("Vertical", 27, 2, 28, 2))
sketch10.addConstraint(Sketcher.Constraint("Vertical", 26, 2, 29, 2))
sketch10.addConstraint(Sketcher.Constraint("Equal", 2, 4))
sketch10.addConstraint(Sketcher.Constraint("Equal", 10, 12))
sketch10.addConstraint(Sketcher.Constraint("Equal", 14, 16))
sketch10.addConstraint(Sketcher.Constraint("Equal", 18, 20))
sketch10.addConstraint(Sketcher.Constraint("Equal", 22, 24))
sketch10.addConstraint(Sketcher.Constraint("Equal", 26, 28))
sketch10.addConstraint(Sketcher.Constraint("DistanceX", 1, 1, 1, 2, Q("36 mm")))
sketch10.addConstraint(Sketcher.Constraint("DistanceY", 8, 2, 8, 1, Q("1 mm")))
sketch10.addConstraint(Sketcher.Constraint("DistanceY", 0, 2, 0, 1, Q("1.5 mm")))
sketch10.addConstraint(Sketcher.Constraint("DistanceY", -1, 1, 6, 2, Q("25 mm")))
sketch10.addConstraint(Sketcher.Constraint("DistanceX", 0, 2, -1, 1, Q("20.25 mm")))
sketch10.addConstraint(Sketcher.Constraint("DistanceY", -1, 1, 8, 2, Q("3.4931 mm")))
sketch10.addConstraint(Sketcher.Constraint("DistanceY", -1, 1, 12, 2, Q("6.4862 mm")))
sketch10.addConstraint(Sketcher.Constraint("DistanceY", -1, 1, 16, 2, Q("9.4793 mm")))
sketch10.addConstraint(Sketcher.Constraint("DistanceY", -1, 1, 20, 2, Q("12.472401 mm")))
sketch10.addConstraint(Sketcher.Constraint("DistanceY", -1, 1, 24, 2, Q("15.465501 mm")))
sketch10.addConstraint(Sketcher.Constraint("DistanceY", -1, 1, 28, 2, Q("19.48275 mm")))
pad9 = body.newObject("PartDesign::Pad", "Pad008")
pad9.Profile = sketch10
pad9.Length = 3.5

sketch11 = body.newObject("Sketcher::SketchObject", "Sketch010")
sketch11.AttachmentSupport = (doc.getObject("XY_Plane"), [""])
sketch11.MapMode = "FlatFace"
sketch11.addGeometry(Part.Circle(V(26, 20, 0), V(0, 0, 1), 5), False)
sketch11.addGeometry(Part.Circle(V(-25, 14, 0), V(0, 0, 1), 5), False)
sketch11.addConstraint(Sketcher.Constraint("Equal", 0, 1))
sketch11.addConstraint(Sketcher.Constraint("Diameter", 0, Q("10 mm")))
sketch11.addConstraint(Sketcher.Constraint("DistanceX", -1, 1, 0, 3, Q("26 mm")))
sketch11.addConstraint(Sketcher.Constraint("DistanceY", -1, 1, 0, 3, Q("20 mm")))
sketch11.addConstraint(Sketcher.Constraint("DistanceX", 1, 3, -1, 1, Q("25 mm")))
sketch11.addConstraint(Sketcher.Constraint("DistanceY", -1, 1, 1, 3, Q("14 mm")))
pad10 = body.newObject("PartDesign::Pad", "Pad009")
pad10.Profile = sketch11
pad10.Length = 13.5
pad10.Reversed = True

sketch12 = body.newObject("Sketcher::SketchObject", "Sketch011")
sketch12.AttachmentSupport = (doc.getObject("XY_Plane"), [""])
sketch12.MapMode = "FlatFace"
sketch12.addGeometry(Part.Circle(V(20, 4, 0), V(0, 0, 1), 10), False)
sketch12.addGeometry(Part.Circle(V(20, 4, 0), V(0, 0, 1), 6), False)
sketch12.addConstraint(Sketcher.Constraint("Coincident", 1, 3, 0, 3))
sketch12.addConstraint(Sketcher.Constraint("Diameter", 0, Q("20.5 mm")))
sketch12.addConstraint(Sketcher.Constraint("Diameter", 1, Q("12.5 mm")))
sketch12.addConstraint(Sketcher.Constraint("DistanceY", -1, 1, 0, 3, Q("4 mm")))
sketch12.addConstraint(Sketcher.Constraint("DistanceX", -1, 1, 0, 3, Q("20.5 mm")))
pad11 = body.newObject("PartDesign::Pad", "Pad010")
pad11.Profile = sketch12
pad11.Length = 8.25
pad11.Reversed = True

doc.recompute()
